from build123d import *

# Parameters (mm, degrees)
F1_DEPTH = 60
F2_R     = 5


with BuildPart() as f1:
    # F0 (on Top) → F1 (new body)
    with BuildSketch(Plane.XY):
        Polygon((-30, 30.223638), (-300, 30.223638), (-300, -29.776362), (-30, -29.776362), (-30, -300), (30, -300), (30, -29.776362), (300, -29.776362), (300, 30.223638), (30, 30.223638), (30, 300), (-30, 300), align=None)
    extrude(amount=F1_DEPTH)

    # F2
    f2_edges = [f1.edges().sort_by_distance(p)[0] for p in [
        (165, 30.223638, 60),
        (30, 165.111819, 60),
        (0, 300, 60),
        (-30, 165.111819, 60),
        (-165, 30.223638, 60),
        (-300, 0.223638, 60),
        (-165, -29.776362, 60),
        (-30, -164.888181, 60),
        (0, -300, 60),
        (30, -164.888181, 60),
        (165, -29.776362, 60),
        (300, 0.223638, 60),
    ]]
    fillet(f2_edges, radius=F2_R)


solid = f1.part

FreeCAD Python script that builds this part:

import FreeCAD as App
import Part
import Sketcher
from FreeCAD import Vector


def edges_at(feature, points):
    """Names of the edges that pass closest to the given points."""
    edges = feature.Shape.Edges
    near = lambda p: min(range(len(edges)), key=lambda i: edges[i].distToShape(Part.Vertex(*p))[0])
    return sorted({f"Edge{near(p) + 1}" for p in points})

doc = App.newDocument("Part")
body = doc.addObject("PartDesign::Body", "Body")

sketch1 = body.newObject("Sketcher::SketchObject", "Sketch")
sketch1.AttachmentSupport = (doc.getObject("XY_Plane"), [""])
sketch1.MapMode = "FlatFace"
sketch1.addGeometry(Part.LineSegment(Vector(-30, 30, 0), Vector(-300, 30, 0)), False)
sketch1.addGeometry(Part.LineSegment(Vector(-300, 30, 0), Vector(-300, -30, 0)), False)
sketch1.addGeometry(Part.LineSegment(Vector(-300, -30, 0), Vector(-30, -30, 0)), False)
sketch1.addGeometry(Part.LineSegment(Vector(-30, -30, 0), Vector(-30, -300, 0)), False)
sketch1.addGeometry(Part.LineSegment(Vector(-30, -300, 0), Vector(30, -300, 0)), False)
sketch1.addGeometry(Part.LineSegment(Vector(30, -300, 0), Vector(30, -30, 0)), False)
sketch1.addGeometry(Part.LineSegment(Vector(30, -30, 0), Vector(300, -30, 0)), False)
sketch1.addGeometry(Part.LineSegment(Vector(300, -30, 0), Vector(300, 30, 0)), False)
sketch1.addGeometry(Part.LineSegment(Vector(300, 30, 0), Vector(30, 30, 0)), False)
sketch1.addGeometry(Part.LineSegment(Vector(30, 30, 0), Vector(30, 300, 0)), False)
sketch1.addGeometry(Part.LineSegment(Vector(30, 300, 0), Vector(-30, 300, 0)), False)
sketch1.addGeometry(Part.LineSegment(Vector(-30, 300, 0), Vector(-30, 30, 0)), False)
sketch1.addConstraint(Sketcher.Constraint("Coincident", 0, 2, 1, 1))
sketch1.addConstraint(Sketcher.Constraint("Coincident", 1, 2, 2, 1))
sketch1.addConstraint(Sketcher.Constraint("Coincident", 2, 2, 3, 1))
sketch1.addConstraint(Sketcher.Constraint("Coincident", 3, 2, 4, 1))
sketch1.addConstraint(Sketcher.Constraint("Coincident", 4, 2, 5, 1))
sketch1.addConstraint(Sketcher.Constraint("Coincident", 5, 2, 6, 1))
sketch1.addConstraint(Sketcher.Constraint("Coincident", 6, 2, 7, 1))
sketch1.addConstraint(Sketcher.Constraint("Coincident", 7, 2, 8, 1))
sketch1.addConstraint(Sketcher.Constraint("Coincident", 8, 2, 9, 1))
sketch1.addConstraint(Sketcher.Constraint("Coincident", 9, 2, 10, 1))
sketch1.addConstraint(Sketcher.Constraint("Coincident", 10, 2, 11, 1))
sketch1.addConstraint(Sketcher.Constraint("Coincident", 11, 2, 0, 1))
sketch1.addConstraint(Sketcher.Constraint("Horizontal", 0))
sketch1.addConstraint(Sketcher.Constraint("Vertical", 1))
sketch1.addConstraint(Sketcher.Constraint("Horizontal", 2))
sketch1.addConstraint(Sketcher.Constraint("Vertical", 3))
sketch1.addConstraint(Sketcher.Constraint("Horizontal", 4))
sketch1.addConstraint(Sketcher.Constraint("Vertical", 5))
sketch1.addConstraint(Sketcher.Constraint("Horizontal", 6))
sketch1.addConstraint(Sketcher.Constraint("Vertical", 7))
sketch1.addConstraint(Sketcher.Constraint("Horizontal", 8))
sketch1.addConstraint(Sketcher.Constraint("Vertical", 9))
sketch1.addConstraint(Sketcher.Constraint("Horizontal", 10))
sketch1.addConstraint(Sketcher.Constraint("Vertical", 11))
sketch1.addConstraint(Sketcher.Constraint("Symmetric", 3, 2, 9, 2, -1, 1))
sketch1.addConstraint(Sketcher.Constraint("Symmetric", 2, 2, 5, 2, -2))
sketch1.addConstraint(Sketcher.Constraint("Symmetric", 0, 2, 7, 2, -2))
sketch1.addConstraint(Sketcher.Constraint("Vertical", 3, 2, 10, 2))
sketch1.addConstraint(Sketcher.Constraint("Equal", 10, 1))
sketch1.addConstraint(Sketcher.Constraint("DistanceX", 0, 2, 0, 1, 270.0))
sketch1.addConstraint(Sketcher.Constraint("DistanceX", 4, 1, 4, 2, 60.0))
sketch1.addConstraint(Sketcher.Constraint("DistanceY", 3, 2, -1, 1, 300.0))
sketch1.addConstraint(Sketcher.Constraint("DistanceY", 3, 2, 3, 1, 270.223638))
pad1 = body.newObject("PartDesign::Pad", "Pad")
pad1.Profile = sketch1
pad1.Length = 60
doc.recompute()

fillet = body.newObject("PartDesign::Fillet", "Fillet")
fillet.Base = (pad1, edges_at(pad1, [
    (165, 30.224, 60),
    (30, 165.112, 60),
    (0, 300, 60),
    (-30, 165.112, 60),
    (-165, 30.224, 60),
    (-300, 0.224, 60),
    (-165, -29.776, 60),
    (-30, -164.888, 60),
    (0, -300, 60),
    (30, -164.888, 60),
    (165, -29.776, 60),
    (300, 0.224, 60),
]))
fillet.Radius = 5

doc.recompute()
